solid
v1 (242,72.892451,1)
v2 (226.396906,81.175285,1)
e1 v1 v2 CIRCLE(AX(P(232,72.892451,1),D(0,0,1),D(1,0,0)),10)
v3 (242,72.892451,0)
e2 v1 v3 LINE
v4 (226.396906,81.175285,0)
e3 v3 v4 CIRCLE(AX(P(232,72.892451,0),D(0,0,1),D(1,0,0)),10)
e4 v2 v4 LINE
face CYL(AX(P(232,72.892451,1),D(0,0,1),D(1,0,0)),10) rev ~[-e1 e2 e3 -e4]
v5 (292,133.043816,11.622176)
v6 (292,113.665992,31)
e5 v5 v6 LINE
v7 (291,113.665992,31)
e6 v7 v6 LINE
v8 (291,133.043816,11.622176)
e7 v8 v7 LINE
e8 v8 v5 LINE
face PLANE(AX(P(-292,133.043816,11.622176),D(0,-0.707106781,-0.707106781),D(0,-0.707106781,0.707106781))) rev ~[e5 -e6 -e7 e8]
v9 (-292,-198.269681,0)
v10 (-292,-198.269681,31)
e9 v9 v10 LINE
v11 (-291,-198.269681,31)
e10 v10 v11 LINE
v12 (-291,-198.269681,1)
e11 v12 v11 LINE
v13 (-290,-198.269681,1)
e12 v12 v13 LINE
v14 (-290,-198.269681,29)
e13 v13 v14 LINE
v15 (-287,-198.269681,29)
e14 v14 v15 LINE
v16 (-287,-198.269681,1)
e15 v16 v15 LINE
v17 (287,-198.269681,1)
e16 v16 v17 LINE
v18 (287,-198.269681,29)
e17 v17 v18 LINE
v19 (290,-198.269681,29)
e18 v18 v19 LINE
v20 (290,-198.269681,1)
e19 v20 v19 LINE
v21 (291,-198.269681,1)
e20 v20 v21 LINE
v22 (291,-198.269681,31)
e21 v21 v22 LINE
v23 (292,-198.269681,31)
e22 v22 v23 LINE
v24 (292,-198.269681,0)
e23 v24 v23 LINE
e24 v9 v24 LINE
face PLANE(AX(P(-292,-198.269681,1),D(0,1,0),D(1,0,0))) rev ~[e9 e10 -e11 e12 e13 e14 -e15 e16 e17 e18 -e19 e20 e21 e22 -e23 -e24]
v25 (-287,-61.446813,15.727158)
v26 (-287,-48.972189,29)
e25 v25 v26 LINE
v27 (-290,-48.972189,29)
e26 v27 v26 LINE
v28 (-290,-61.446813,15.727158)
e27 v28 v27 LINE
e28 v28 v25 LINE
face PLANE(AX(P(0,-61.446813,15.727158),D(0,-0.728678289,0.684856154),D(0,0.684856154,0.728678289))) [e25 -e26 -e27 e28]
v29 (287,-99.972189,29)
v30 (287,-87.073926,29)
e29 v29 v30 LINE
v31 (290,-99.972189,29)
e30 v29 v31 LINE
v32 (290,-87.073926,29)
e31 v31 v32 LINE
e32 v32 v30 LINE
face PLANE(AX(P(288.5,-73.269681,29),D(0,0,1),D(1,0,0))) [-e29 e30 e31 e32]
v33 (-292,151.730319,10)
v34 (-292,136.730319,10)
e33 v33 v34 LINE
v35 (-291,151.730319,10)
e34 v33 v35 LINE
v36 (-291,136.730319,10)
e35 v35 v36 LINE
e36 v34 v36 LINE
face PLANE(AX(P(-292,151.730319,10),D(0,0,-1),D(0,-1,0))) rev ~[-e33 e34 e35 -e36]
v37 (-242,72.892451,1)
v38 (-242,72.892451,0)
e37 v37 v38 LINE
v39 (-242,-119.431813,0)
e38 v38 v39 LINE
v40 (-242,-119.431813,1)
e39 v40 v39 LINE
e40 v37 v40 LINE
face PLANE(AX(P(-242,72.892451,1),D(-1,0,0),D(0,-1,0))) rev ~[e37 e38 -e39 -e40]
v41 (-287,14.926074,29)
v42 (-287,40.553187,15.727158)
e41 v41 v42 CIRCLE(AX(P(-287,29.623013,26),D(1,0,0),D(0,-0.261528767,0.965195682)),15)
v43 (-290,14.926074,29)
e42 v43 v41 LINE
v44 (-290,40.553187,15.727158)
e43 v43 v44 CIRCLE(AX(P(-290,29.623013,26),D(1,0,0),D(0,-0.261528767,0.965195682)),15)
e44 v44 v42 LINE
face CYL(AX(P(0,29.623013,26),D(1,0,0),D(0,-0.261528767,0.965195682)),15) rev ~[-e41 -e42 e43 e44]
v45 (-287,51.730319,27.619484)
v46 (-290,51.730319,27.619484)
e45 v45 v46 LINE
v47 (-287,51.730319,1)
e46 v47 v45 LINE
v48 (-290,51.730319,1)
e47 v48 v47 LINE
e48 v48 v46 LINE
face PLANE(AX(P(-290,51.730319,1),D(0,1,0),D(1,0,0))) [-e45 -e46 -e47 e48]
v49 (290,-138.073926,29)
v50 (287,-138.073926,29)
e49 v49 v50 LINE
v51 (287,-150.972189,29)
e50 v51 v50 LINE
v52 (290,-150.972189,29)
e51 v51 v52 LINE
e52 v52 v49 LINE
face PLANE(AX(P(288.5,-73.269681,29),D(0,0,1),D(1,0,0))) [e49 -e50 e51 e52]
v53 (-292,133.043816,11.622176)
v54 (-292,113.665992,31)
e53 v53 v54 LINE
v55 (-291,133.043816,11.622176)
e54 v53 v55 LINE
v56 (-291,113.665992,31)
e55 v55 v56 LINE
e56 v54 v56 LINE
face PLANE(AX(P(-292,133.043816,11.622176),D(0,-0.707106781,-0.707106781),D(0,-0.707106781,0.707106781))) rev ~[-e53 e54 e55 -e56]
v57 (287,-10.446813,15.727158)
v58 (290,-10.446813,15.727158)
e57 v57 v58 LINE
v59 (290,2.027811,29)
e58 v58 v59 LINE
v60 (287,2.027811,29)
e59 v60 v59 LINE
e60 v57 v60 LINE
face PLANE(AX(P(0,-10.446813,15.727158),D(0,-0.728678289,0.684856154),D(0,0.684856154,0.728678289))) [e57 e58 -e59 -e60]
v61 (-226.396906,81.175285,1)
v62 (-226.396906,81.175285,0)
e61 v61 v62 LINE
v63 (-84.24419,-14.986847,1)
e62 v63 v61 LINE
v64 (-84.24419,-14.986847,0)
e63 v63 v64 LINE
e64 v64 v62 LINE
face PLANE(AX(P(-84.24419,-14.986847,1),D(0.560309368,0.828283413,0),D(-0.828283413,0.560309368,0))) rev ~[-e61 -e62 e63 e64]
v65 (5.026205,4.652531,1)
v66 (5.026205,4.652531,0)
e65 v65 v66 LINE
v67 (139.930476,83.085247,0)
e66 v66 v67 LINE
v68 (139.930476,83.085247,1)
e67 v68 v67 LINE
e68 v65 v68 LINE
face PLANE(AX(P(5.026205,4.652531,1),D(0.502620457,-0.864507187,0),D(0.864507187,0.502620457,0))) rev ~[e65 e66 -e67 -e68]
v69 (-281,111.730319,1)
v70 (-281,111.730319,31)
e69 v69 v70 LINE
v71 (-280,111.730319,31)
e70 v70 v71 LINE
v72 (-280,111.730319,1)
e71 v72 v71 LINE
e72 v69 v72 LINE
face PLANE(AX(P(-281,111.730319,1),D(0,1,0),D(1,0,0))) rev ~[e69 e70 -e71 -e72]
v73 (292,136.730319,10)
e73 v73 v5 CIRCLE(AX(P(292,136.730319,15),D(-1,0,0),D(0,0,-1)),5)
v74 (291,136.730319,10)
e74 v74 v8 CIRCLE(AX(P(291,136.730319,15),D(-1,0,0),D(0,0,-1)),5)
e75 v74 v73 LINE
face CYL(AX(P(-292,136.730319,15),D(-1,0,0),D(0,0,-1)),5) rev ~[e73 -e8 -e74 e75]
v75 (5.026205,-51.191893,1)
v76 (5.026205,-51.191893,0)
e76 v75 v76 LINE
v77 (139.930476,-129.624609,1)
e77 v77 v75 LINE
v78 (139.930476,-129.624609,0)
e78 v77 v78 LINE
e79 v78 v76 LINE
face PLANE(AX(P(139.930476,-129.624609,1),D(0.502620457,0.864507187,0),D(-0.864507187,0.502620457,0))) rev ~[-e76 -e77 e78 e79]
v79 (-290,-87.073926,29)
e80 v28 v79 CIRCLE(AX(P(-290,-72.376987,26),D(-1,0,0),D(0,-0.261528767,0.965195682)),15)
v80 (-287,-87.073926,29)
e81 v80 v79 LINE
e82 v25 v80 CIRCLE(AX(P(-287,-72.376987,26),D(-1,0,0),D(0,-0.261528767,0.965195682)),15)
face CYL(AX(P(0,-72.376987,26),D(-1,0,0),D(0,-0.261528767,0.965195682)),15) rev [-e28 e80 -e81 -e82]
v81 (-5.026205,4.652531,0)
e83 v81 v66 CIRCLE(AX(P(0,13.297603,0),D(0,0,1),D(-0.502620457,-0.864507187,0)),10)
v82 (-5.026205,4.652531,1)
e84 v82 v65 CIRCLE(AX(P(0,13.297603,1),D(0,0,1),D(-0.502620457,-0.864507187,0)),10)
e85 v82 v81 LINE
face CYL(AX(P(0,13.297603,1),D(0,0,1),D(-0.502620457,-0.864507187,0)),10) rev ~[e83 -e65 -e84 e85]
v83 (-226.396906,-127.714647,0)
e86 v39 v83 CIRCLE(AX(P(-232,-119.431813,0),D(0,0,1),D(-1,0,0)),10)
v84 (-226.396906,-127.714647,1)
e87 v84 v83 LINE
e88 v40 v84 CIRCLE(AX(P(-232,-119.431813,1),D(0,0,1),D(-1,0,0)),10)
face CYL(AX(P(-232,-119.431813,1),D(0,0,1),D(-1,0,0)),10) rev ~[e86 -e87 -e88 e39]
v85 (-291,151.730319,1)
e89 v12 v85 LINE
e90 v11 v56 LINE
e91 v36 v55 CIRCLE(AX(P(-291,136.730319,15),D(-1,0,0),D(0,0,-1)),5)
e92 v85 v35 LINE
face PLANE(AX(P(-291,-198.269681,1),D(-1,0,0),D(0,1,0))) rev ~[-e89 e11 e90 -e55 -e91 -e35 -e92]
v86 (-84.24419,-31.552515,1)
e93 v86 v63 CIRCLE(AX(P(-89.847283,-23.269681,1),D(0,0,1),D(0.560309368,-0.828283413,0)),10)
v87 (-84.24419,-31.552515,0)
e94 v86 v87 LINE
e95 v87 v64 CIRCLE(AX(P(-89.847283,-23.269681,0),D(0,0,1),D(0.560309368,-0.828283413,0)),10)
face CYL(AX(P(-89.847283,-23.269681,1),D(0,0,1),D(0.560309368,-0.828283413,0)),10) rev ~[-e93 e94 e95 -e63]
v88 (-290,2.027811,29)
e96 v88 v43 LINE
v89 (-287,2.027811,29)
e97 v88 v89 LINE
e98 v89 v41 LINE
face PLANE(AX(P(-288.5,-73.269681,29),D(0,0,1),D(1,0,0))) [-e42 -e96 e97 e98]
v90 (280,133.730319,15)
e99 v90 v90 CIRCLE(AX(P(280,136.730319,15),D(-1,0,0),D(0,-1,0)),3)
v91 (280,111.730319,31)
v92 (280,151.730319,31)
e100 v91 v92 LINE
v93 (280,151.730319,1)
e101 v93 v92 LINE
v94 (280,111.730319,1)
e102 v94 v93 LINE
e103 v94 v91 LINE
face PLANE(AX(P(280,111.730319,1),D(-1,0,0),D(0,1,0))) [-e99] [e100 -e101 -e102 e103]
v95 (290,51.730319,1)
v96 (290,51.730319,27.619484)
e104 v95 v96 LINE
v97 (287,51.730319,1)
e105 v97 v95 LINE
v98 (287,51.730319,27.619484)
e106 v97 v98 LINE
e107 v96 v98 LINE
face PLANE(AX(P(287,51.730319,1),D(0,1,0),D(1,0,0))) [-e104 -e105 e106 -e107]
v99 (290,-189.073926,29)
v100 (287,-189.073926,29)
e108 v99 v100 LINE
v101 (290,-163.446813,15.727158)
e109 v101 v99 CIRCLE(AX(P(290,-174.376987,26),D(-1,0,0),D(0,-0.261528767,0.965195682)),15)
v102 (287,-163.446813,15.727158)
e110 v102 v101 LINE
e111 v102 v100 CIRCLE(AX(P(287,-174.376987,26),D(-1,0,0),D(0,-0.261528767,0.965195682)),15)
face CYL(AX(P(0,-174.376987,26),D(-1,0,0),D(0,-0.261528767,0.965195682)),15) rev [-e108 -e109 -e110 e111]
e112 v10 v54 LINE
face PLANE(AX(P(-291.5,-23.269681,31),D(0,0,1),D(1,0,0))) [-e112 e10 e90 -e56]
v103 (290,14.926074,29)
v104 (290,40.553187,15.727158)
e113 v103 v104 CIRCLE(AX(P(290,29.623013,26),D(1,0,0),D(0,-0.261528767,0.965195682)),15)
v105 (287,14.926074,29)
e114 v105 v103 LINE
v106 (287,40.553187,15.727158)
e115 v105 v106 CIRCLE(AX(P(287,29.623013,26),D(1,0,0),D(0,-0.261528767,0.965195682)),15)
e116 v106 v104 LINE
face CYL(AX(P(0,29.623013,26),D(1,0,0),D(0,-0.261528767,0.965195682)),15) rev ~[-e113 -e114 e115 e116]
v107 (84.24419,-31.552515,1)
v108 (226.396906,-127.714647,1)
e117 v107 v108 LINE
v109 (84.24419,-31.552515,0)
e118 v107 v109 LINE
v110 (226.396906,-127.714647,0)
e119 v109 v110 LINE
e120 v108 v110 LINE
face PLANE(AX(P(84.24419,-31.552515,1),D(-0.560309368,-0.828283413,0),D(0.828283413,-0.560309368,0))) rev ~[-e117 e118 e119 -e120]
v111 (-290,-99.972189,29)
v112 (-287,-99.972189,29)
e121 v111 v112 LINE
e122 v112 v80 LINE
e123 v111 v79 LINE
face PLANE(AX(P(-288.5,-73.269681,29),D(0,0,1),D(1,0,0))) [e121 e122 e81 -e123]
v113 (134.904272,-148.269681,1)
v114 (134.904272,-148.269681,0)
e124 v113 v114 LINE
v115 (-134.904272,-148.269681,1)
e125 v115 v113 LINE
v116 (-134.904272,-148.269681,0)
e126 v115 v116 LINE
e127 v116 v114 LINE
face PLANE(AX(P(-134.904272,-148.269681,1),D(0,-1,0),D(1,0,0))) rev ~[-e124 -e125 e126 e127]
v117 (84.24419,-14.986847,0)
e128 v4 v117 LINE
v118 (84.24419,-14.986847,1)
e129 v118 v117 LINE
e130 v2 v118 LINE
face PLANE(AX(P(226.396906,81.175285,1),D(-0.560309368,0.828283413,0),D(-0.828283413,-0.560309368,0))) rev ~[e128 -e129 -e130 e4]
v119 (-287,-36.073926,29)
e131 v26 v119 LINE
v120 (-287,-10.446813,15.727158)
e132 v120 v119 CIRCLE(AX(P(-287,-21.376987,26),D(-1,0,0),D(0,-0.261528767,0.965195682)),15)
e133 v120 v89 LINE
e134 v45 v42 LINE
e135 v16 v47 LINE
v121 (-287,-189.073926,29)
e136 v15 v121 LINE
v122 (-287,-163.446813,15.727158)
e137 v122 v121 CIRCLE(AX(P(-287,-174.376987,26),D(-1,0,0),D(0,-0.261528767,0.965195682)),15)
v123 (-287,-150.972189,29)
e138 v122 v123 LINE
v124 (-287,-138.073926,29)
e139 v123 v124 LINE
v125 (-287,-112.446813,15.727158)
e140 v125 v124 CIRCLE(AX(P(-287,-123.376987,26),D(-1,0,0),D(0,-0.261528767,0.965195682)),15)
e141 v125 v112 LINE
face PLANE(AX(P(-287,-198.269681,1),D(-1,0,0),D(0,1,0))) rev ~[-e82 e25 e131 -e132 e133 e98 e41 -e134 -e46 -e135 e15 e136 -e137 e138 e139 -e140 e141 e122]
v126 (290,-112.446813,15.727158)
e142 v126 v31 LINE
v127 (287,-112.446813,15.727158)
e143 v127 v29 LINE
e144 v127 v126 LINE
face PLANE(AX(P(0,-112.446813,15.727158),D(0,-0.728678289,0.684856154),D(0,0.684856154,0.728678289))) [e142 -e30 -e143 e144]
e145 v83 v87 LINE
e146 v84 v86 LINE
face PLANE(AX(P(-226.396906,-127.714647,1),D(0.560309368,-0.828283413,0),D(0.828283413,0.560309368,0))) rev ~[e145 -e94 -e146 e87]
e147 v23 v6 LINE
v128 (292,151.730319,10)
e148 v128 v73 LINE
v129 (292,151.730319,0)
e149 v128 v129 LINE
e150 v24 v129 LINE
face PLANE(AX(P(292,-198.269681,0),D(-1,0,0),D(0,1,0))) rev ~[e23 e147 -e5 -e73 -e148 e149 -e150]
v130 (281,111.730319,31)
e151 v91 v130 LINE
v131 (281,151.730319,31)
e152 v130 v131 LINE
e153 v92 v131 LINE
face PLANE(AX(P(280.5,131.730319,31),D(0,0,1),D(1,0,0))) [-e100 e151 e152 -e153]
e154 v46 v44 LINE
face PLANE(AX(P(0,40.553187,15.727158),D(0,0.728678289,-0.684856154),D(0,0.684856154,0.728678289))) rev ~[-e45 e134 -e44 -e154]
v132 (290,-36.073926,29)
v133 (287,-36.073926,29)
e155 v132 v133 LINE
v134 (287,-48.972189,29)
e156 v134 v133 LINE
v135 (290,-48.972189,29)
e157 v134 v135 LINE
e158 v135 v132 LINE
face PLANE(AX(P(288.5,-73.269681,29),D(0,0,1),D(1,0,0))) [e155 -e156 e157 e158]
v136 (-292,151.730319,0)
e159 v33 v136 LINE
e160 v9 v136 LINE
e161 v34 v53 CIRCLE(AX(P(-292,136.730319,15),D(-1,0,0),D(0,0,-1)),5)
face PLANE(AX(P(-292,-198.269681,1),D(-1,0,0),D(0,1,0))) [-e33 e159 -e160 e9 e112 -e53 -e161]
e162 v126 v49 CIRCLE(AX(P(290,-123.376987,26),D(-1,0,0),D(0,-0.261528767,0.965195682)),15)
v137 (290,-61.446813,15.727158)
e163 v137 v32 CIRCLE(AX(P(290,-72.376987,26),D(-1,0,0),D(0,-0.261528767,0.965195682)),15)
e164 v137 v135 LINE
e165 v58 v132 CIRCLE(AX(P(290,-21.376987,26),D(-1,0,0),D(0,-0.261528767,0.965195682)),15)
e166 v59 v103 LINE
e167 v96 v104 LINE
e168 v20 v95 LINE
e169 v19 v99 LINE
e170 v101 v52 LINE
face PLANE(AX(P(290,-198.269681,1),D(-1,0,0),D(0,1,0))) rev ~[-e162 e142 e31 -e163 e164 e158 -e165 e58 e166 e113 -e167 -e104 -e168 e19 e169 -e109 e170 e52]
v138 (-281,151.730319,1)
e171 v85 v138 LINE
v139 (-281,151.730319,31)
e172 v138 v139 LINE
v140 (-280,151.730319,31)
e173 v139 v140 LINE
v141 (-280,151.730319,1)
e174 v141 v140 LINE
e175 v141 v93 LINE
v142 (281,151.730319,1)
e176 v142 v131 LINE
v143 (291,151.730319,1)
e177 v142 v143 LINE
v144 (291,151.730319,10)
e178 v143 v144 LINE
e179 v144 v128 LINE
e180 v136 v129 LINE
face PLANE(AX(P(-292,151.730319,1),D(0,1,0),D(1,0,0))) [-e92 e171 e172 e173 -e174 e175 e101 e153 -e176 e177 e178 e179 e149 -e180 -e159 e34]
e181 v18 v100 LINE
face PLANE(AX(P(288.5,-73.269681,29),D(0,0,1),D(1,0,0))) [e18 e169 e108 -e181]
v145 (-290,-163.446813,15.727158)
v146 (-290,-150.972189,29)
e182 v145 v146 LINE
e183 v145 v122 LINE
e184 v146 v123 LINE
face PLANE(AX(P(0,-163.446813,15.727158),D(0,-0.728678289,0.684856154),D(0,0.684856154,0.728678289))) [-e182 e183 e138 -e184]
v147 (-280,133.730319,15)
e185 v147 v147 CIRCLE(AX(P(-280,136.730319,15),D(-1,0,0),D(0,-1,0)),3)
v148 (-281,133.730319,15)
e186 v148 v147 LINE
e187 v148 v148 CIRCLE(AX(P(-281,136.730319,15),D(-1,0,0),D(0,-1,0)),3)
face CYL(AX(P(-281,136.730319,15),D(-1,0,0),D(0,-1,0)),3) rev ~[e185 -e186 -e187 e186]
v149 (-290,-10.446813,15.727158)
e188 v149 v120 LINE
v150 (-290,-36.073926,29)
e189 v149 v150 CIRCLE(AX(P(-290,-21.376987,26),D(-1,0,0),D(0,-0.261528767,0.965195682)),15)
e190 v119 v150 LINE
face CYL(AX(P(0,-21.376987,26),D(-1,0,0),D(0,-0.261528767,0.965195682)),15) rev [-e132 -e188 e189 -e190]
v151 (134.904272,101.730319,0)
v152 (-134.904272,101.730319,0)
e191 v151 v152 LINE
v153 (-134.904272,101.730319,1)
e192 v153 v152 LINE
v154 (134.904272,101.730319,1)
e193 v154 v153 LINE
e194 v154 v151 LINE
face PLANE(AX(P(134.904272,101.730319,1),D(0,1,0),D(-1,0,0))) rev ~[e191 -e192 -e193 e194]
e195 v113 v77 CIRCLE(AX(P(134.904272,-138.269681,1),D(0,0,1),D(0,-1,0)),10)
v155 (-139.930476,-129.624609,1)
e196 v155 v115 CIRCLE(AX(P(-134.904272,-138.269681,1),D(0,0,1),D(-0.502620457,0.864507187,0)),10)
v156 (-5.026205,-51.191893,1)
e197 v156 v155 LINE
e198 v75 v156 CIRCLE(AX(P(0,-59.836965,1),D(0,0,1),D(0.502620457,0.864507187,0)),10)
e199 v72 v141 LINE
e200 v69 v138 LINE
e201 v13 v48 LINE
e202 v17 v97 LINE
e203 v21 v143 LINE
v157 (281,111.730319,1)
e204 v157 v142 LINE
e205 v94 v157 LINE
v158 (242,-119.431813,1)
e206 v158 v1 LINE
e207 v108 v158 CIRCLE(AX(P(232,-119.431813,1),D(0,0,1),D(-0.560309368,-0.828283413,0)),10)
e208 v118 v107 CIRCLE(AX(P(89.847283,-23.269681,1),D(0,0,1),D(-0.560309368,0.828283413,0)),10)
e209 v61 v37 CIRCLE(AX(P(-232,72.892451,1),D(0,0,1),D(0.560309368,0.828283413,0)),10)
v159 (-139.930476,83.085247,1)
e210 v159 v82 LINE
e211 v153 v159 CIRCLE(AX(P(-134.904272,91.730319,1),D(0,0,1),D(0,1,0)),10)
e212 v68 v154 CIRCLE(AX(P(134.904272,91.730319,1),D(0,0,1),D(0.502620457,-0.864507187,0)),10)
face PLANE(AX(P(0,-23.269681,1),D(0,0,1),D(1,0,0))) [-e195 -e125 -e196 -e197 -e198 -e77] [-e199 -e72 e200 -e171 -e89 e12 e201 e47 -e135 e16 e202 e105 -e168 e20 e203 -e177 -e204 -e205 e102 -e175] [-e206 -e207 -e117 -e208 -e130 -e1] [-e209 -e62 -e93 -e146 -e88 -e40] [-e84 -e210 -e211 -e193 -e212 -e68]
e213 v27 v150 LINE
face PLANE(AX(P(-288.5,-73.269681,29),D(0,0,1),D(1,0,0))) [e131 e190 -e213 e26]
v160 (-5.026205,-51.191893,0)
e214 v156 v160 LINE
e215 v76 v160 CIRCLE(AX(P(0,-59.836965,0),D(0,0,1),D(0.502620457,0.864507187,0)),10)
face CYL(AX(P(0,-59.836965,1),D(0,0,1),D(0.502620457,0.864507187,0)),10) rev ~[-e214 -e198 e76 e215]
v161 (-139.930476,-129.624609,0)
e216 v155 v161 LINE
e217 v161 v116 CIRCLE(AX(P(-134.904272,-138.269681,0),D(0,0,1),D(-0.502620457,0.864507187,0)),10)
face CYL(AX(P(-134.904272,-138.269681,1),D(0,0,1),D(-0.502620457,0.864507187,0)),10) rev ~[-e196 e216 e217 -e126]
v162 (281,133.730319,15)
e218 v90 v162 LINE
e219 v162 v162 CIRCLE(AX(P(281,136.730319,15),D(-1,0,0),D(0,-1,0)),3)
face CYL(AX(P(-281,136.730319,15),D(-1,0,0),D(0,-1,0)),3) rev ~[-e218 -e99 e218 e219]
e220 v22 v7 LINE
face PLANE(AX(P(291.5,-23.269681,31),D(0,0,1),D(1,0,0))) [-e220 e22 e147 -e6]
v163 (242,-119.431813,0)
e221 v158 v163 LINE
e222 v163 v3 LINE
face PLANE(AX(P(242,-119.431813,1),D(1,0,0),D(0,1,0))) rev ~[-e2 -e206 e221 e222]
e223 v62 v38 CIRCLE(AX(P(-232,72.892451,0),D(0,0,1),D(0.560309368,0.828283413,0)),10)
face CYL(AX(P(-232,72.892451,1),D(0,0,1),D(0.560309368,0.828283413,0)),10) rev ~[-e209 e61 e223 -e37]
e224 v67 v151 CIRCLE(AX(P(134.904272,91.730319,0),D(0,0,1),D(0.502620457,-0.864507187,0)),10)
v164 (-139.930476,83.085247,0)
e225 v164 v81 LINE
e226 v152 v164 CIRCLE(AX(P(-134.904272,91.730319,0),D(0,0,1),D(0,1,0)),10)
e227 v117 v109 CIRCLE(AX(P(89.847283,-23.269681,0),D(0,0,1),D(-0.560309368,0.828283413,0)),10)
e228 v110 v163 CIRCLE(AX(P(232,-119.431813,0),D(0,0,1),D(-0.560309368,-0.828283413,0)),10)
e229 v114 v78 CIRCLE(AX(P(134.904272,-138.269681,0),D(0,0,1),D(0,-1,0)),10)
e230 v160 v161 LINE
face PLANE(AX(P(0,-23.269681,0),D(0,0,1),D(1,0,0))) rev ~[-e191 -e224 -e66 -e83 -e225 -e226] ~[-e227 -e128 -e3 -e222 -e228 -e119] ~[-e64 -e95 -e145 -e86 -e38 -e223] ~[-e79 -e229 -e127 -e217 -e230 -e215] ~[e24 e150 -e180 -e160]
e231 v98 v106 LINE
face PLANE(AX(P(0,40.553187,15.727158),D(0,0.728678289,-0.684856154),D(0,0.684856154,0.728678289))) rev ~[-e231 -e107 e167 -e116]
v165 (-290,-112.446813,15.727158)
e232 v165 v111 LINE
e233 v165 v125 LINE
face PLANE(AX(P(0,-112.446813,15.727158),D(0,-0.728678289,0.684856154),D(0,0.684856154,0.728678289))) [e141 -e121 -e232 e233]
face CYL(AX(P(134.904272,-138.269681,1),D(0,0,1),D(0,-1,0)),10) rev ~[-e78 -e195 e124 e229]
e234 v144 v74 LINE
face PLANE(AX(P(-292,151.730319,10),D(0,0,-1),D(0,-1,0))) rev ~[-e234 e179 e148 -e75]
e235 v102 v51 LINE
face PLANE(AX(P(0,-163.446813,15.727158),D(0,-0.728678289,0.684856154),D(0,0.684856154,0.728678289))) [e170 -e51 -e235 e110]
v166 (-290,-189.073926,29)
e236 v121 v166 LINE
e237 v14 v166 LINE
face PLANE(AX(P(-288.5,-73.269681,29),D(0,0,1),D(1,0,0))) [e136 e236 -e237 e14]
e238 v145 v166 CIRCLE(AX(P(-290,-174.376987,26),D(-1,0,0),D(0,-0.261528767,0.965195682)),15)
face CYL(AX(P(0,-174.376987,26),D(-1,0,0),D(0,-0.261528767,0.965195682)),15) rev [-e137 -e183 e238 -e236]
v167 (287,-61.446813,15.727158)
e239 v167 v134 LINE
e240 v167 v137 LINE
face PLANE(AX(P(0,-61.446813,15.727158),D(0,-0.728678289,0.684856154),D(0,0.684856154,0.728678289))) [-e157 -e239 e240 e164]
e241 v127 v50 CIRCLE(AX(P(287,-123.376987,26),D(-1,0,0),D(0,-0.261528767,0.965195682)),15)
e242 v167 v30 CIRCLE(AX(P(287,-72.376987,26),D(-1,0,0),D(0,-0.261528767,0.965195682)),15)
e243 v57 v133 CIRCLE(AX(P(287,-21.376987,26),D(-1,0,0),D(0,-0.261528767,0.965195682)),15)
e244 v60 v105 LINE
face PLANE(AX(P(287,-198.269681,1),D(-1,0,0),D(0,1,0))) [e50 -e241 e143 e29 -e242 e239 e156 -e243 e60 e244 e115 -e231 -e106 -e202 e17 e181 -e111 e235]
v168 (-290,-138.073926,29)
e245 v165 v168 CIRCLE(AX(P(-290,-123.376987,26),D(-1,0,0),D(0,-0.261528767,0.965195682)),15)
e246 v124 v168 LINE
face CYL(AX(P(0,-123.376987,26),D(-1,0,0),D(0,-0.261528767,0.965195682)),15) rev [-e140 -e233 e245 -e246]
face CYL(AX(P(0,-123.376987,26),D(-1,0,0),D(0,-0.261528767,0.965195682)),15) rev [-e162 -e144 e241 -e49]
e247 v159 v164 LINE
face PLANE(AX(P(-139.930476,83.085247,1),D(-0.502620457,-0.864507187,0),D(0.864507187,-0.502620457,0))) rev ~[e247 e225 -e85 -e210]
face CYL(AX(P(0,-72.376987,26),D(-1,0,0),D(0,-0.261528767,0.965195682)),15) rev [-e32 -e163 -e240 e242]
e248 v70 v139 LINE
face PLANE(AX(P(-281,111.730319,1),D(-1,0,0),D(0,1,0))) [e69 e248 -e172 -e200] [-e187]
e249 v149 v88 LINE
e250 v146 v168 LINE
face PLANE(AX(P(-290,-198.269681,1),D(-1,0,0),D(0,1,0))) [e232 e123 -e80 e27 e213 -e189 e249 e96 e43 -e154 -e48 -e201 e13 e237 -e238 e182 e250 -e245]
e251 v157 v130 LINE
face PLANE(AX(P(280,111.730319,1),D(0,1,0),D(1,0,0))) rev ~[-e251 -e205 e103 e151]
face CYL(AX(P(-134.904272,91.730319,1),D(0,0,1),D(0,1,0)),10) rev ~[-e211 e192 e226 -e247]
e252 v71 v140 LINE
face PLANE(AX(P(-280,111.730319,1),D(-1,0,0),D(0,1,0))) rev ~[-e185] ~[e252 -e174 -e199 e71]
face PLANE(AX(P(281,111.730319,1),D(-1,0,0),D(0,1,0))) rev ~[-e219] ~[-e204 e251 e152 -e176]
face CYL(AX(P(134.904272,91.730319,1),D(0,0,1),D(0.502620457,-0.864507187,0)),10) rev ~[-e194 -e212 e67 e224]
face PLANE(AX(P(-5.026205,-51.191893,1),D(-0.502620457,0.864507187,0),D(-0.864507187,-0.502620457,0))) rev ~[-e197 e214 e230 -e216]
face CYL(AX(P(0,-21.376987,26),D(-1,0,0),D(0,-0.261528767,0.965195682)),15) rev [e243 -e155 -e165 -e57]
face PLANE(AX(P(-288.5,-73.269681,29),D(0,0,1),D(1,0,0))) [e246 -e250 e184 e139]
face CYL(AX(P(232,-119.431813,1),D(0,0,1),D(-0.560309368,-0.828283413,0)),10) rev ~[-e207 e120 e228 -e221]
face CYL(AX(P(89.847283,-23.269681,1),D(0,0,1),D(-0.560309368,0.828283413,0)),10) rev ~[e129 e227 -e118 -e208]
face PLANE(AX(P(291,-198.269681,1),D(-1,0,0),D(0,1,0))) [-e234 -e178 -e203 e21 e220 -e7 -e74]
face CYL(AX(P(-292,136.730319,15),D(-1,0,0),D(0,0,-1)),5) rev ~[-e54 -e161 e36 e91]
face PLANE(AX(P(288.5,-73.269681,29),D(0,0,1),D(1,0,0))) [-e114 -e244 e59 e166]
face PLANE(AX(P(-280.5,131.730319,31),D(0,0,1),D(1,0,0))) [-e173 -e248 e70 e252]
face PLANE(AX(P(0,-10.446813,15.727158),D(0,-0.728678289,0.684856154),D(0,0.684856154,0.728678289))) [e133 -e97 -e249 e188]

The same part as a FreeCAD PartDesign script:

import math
import FreeCAD as App
import Part
import Sketcher

V = App.Vector
Q = App.Units.Quantity

doc = App.newDocument("Part")
body = doc.addObject("PartDesign::Body", "Body")

sketch1 = body.newObject("Sketcher::SketchObject", "Sketch")
sketch1.AttachmentSupport = (doc.getObject("XY_Plane"), [""])
sketch1.MapMode = "FlatFace"
sketch1.addGeometry([
    Part.LineSegment(V(-292, 152, 0), V(-292, -198, 0)),
    Part.LineSegment(V(-292, -198, 0), V(292, -198, 0)),
    Part.LineSegment(V(292, -198, 0), V(292, 152, 0)),
    Part.LineSegment(V(292, 152, 0), V(-292, 152, 0)),
], False)
sketch1.addConstraint([
    Sketcher.Constraint("Coincident", 0, 2, 1, 1),
    Sketcher.Constraint("Coincident", 1, 2, 2, 1),
    Sketcher.Constraint("Coincident", 2, 2, 3, 1),
    Sketcher.Constraint("Coincident", 3, 2, 0, 1),
    Sketcher.Constraint("Vertical", 0),
    Sketcher.Constraint("Horizontal", 1),
    Sketcher.Constraint("Vertical", 2),
    Sketcher.Constraint("Horizontal", 3),
    Sketcher.Constraint("DistanceX", 1, 1, 1, 2, 584.0),
    Sketcher.Constraint("DistanceY", 0, 2, 0, 1, 350.0),
    Sketcher.Constraint("DistanceX", 0, 2, -1, 1, 292.0),
    Sketcher.Constraint("DistanceY", 0, 2, -1, 1, 198.269681),
])
pad1 = body.newObject("PartDesign::Pad", "Pad")
pad1.Profile = sketch1
pad1.Length = 1

sketch2 = body.newObject("Sketcher::SketchObject", "Sketch001")
sketch2.AttachmentSupport = (doc.getObject("XY_Plane"), [""])
sketch2.MapMode = "FlatFace"
sketch2.AttachmentOffset = App.Placement(V(0, 0, 1), App.Rotation())
sketch2.addGeometry([
    Part.LineSegment(V(-292, 151.7, 0), V(-292, -198.3, 0)),
    Part.LineSegment(V(-292, -198.3, 0), V(-291, -198.3, 0)),
    Part.LineSegment(V(-291, -198.3, 0), V(-291, 151.7, 0)),
    Part.LineSegment(V(-291, 151.7, 0), V(-292, 151.7, 0)),
    Part.LineSegment(V(291, 151.7, 0), V(291, -198.3, 0)),
    Part.LineSegment(V(291, -198.3, 0), V(292, -198.3, 0)),
    Part.LineSegment(V(292, -198.3, 0), V(292, 151.7, 0)),
    Part.LineSegment(V(292, 151.7, 0), V(291, 151.7, 0)),
], False)
sketch2.addConstraint([
    Sketcher.Constraint("Coincident", 0, 2, 1, 1),
    Sketcher.Constraint("Coincident", 1, 2, 2, 1),
    Sketcher.Constraint("Coincident", 2, 2, 3, 1),
    Sketcher.Constraint("Coincident", 3, 2, 0, 1),
    Sketcher.Constraint("Coincident", 4, 2, 5, 1),
    Sketcher.Constraint("Coincident", 5, 2, 6, 1),
    Sketcher.Constraint("Coincident", 6, 2, 7, 1),
    Sketcher.Constraint("Coincident", 7, 2, 4, 1),
    Sketcher.Constraint("Vertical", 0),
    Sketcher.Constraint("Horizontal", 1),
    Sketcher.Constraint("Vertical", 2),
    Sketcher.Constraint("Horizontal", 3),
    Sketcher.Constraint("Vertical", 4),
    Sketcher.Constraint("Horizontal", 5),
    Sketcher.Constraint("Vertical", 6),
    Sketcher.Constraint("Horizontal", 7),
    Sketcher.Constraint("Symmetric", 1, 2, 4, 2, -2),
    Sketcher.Constraint("Symmetric", 3, 2, 6, 2, -2),
    Sketcher.Constraint("DistanceX", 1, 1, 1, 2, 1.0),
    Sketcher.Constraint("DistanceY", 0, 2, 0, 1, 350.0),
    Sketcher.Constraint("DistanceX", 0, 2, -1, 1, 292.0),
    Sketcher.Constraint("DistanceY", 0, 2, -1, 1, 198.269681),
])
pad2 = body.newObject("PartDesign::Pad", "Pad001")
pad2.Profile = sketch2
pad2.Length = 30

sketch3 = body.newObject("Sketcher::SketchObject", "Sketch002")
sketch3.AttachmentSupport = (doc.getObject("YZ_Plane"), [""])
sketch3.MapMode = "FlatFace"
sketch3.AttachmentOffset = App.Placement(V(0, 0, -292), App.Rotation())
sketch3.addGeometry([
    Part.ArcOfCircle(Part.Circle(V(136.7, 15, 0), V(0, 0, 1), 5), math.radians(-138), math.radians(-90)),
    Part.LineSegment(V(133, 11.6, 0), V(113.7, 31, 0)),
    Part.LineSegment(V(113.7, 31, 0), V(151.7, 31, 0)),
    Part.LineSegment(V(151.7, 31, 0), V(151.7, 10, 0)),
    Part.LineSegment(V(151.7, 10, 0), V(136.7, 10, 0)),
], False)
sketch3.addConstraint([
    Sketcher.Constraint("Coincident", 0, 1, 1, 1),
    Sketcher.Constraint("Coincident", 1, 2, 2, 1),
    Sketcher.Constraint("Coincident", 2, 2, 3, 1),
    Sketcher.Constraint("Coincident", 3, 2, 4, 1),
    Sketcher.Constraint("Tangent", 4, 2, 0, 2),
    Sketcher.Constraint("Horizontal", 2),
    Sketcher.Constraint("Vertical", 3),
    Sketcher.Constraint("Horizontal", 4),
    Sketcher.Constraint("Radius", 0, 5.0),
    Sketcher.Constraint("DistanceX", 4, 2, 4, 1, 15.0),
    Sketcher.Constraint("DistanceY", 3, 2, 3, 1, 21.0),
    Sketcher.Constraint("Angle", 1, Q("135 deg")),
    Sketcher.Constraint("DistanceY", -1, 1, 0, 3, 15.0),
    Sketcher.Constraint("Distance", 1, 27.404381),
    Sketcher.Constraint("DistanceX", -1, 1, 0, 3, 136.730319),
])
pocket1 = body.newObject("PartDesign::Pocket", "Pocket")
pocket1.Profile = sketch3
pocket1.Length = 645
pocket1.Reversed = True

sketch4 = body.newObject("Sketcher::SketchObject", "Sketch003")
sketch4.AttachmentSupport = (doc.getObject("XY_Plane"), [""])
sketch4.MapMode = "FlatFace"
sketch4.AttachmentOffset = App.Placement(V(0, 0, 1), App.Rotation())
sketch4.addGeometry([
    Part.LineSegment(V(-281, 151.7, 0), V(-281, 111.7, 0)),
    Part.LineSegment(V(-281, 111.7, 0), V(-280, 111.7, 0)),
    Part.LineSegment(V(-280, 111.7, 0), V(-280, 151.7, 0)),
    Part.LineSegment(V(-280, 151.7, 0), V(-281, 151.7, 0)),
    Part.LineSegment(V(280, 151.7, 0), V(280, 111.7, 0)),
    Part.LineSegment(V(280, 111.7, 0), V(281, 111.7, 0)),
    Part.LineSegment(V(281, 111.7, 0), V(281, 151.7, 0)),
    Part.LineSegment(V(281, 151.7, 0), V(280, 151.7, 0)),
], False)
sketch4.addConstraint([
    Sketcher.Constraint("Coincident", 0, 2, 1, 1),
    Sketcher.Constraint("Coincident", 1, 2, 2, 1),
    Sketcher.Constraint("Coincident", 2, 2, 3, 1),
    Sketcher.Constraint("Coincident", 3, 2, 0, 1),
    Sketcher.Constraint("Coincident", 4, 2, 5, 1),
    Sketcher.Constraint("Coincident", 5, 2, 6, 1),
    Sketcher.Constraint("Coincident", 6, 2, 7, 1),
    Sketcher.Constraint("Coincident", 7, 2, 4, 1),
    Sketcher.Constraint("Vertical", 0),
    Sketcher.Constraint("Horizontal", 1),
    Sketcher.Constraint("Vertical", 2),
    Sketcher.Constraint("Horizontal", 3),
    Sketcher.Constraint("Vertical", 4),
    Sketcher.Constraint("Horizontal", 5),
    Sketcher.Constraint("Vertical", 6),
    Sketcher.Constraint("Horizontal", 7),
    Sketcher.Constraint("Symmetric", 1, 2, 4, 2, -2),
    Sketcher.Constraint("Symmetric", 3, 2, 6, 2, -2),
    Sketcher.Constraint("DistanceX", 1, 1, 1, 2, 1.0),
    Sketcher.Constraint("DistanceY", 0, 2, 0, 1, 40.0),
    Sketcher.Constraint("DistanceX", 0, 2, -1, 1, 281.0),
    Sketcher.Constraint("DistanceY", -1, 1, 0, 2, 111.730319),
])
pad3 = body.newObject("PartDesign::Pad", "Pad002")
pad3.Profile = sketch4
pad3.Length = 30

sketch5 = body.newObject("Sketcher::SketchObject", "Sketch004")
sketch5.AttachmentSupport = (doc.getObject("YZ_Plane"), [""])
sketch5.MapMode = "FlatFace"
sketch5.AttachmentOffset = App.Placement(V(0, 0, -281), App.Rotation())
sketch5.addGeometry(Part.Circle(V(136.7, 15, 0), V(0, 0, 1), 3), False)
sketch5.addConstraint([
    Sketcher.Constraint("Diameter", 0, 6.0),
    Sketcher.Constraint("DistanceY", -1, 1, 0, 3, 15.0),
    Sketcher.Constraint("DistanceX", -1, 1, 0, 3, 136.730319),
])
pocket2 = body.newObject("PartDesign::Pocket", "Pocket001")
pocket2.Profile = sketch5
pocket2.Length = 565
pocket2.Reversed = True

sketch6 = body.newObject("Sketcher::SketchObject", "Sketch005")
sketch6.AttachmentSupport = (doc.getObject("XY_Plane"), [""])
sketch6.MapMode = "FlatFace"
sketch6.AttachmentOffset = App.Placement(V(0, 0, 1), App.Rotation())
sketch6.addGeometry([
    Part.LineSegment(V(-290, 51.7, 0), V(-290, -198.3, 0)),
    Part.LineSegment(V(-290, -198.3, 0), V(-287, -198.3, 0)),
    Part.LineSegment(V(-287, -198.3, 0), V(-287, 51.7, 0)),
    Part.LineSegment(V(-287, 51.7, 0), V(-290, 51.7, 0)),
    Part.LineSegment(V(287, 51.7, 0), V(287, -198.3, 0)),
    Part.LineSegment(V(287, -198.3, 0), V(290, -198.3, 0)),
    Part.LineSegment(V(290, -198.3, 0), V(290, 51.7, 0)),
    Part.LineSegment(V(290, 51.7, 0), V(287, 51.7, 0)),
], False)
sketch6.addConstraint([
    Sketcher.Constraint("Coincident", 0, 2, 1, 1),
    Sketcher.Constraint("Coincident", 1, 2, 2, 1),
    Sketcher.Constraint("Coincident", 2, 2, 3, 1),
    Sketcher.Constraint("Coincident", 3, 2, 0, 1),
    Sketcher.Constraint("Coincident", 4, 2, 5, 1),
    Sketcher.Constraint("Coincident", 5, 2, 6, 1),
    Sketcher.Constraint("Coincident", 6, 2, 7, 1),
    Sketcher.Constraint("Coincident", 7, 2, 4, 1),
    Sketcher.Constraint("Vertical", 0),
    Sketcher.Constraint("Horizontal", 1),
    Sketcher.Constraint("Vertical", 2),
    Sketcher.Constraint("Horizontal", 3),
    Sketcher.Constraint("Vertical", 4),
    Sketcher.Constraint("Horizontal", 5),
    Sketcher.Constraint("Vertical", 6),
    Sketcher.Constraint("Horizontal", 7),
    Sketcher.Constraint("Symmetric", 1, 2, 4, 2, -2),
    Sketcher.Constraint("Symmetric", 3, 2, 6, 2, -2),
    Sketcher.Constraint("DistanceX", 1, 1, 1, 2, 3.0),
    Sketcher.Constraint("DistanceY", 0, 2, 0, 1, 250.0),
    Sketcher.Constraint("DistanceX", 0, 2, -1, 1, 290.0),
    Sketcher.Constraint("DistanceY", 0, 2, -1, 1, 198.269681),
])
pad4 = body.newObject("PartDesign::Pad", "Pad003")
pad4.Profile = sketch6
pad4.Length = 28

sketch7 = body.newObject("Sketcher::SketchObject", "Sketch006")
sketch7.AttachmentSupport = (doc.getObject("YZ_Plane"), [""])
sketch7.MapMode = "FlatFace"
sketch7.addGeometry([
    Part.ArcOfCircle(Part.Circle(V(-174, 26, 0), V(0, 0, 1), 15), math.radians(105), math.radians(317)),
    Part.LineSegment(V(-163, 16, 0), V(-126, 56, 0)),
    Part.LineSegment(V(-126, 56, 0), V(-178, 40, 0)),
    Part.ArcOfCircle(Part.Circle(V(-123, 26, 0), V(0, 0, 1), 15), math.radians(105), math.radians(317)),
    Part.LineSegment(V(-112, 16, 0), V(-75, 56, 0)),
    Part.LineSegment(V(-75, 56, 0), V(-127, 40, 0)),
    Part.ArcOfCircle(Part.Circle(V(-72, 26, 0), V(0, 0, 1), 15), math.radians(105), math.radians(317)),
    Part.LineSegment(V(-61, 16, 0), V(-24, 56, 0)),
    Part.LineSegment(V(-24, 56, 0), V(-76, 40, 0)),
    Part.ArcOfCircle(Part.Circle(V(-21, 26, 0), V(0, 0, 1), 15), math.radians(105), math.radians(317)),
    Part.LineSegment(V(-10, 16, 0), V(27, 56, 0)),
    Part.LineSegment(V(27, 56, 0), V(-25, 40, 0)),
    Part.ArcOfCircle(Part.Circle(V(30, 26, 0), V(0, 0, 1), 15), math.radians(105), math.radians(317)),
    Part.LineSegment(V(41, 16, 0), V(78, 56, 0)),
    Part.LineSegment(V(78, 56, 0), V(26, 40, 0)),
], False)
sketch7.addConstraint([
    Sketcher.Constraint("Tangent", 0, 2, 1, 1),
    Sketcher.Constraint("Coincident", 1, 2, 2, 1),
    Sketcher.Constraint("Coincident", 2, 2, 0, 1),
    Sketcher.Constraint("Tangent", 3, 2, 4, 1),
    Sketcher.Constraint("Coincident", 4, 2, 5, 1),
    Sketcher.Constraint("Coincident", 5, 2, 3, 1),
    Sketcher.Constraint("Tangent", 6, 2, 7, 1),
    Sketcher.Constraint("Coincident", 7, 2, 8, 1),
    Sketcher.Constraint("Coincident", 8, 2, 6, 1),
    Sketcher.Constraint("Tangent", 9, 2, 10, 1),
    Sketcher.Constraint("Coincident", 10, 2, 11, 1),
    Sketcher.Constraint("Coincident", 11, 2, 9, 1),
    Sketcher.Constraint("Tangent", 12, 2, 13, 1),
    Sketcher.Constraint("Coincident", 13, 2, 14, 1),
    Sketcher.Constraint("Coincident", 14, 2, 12, 1),
    Sketcher.Constraint("Equal", 0, 3),
    Sketcher.Constraint("Equal", 3, 6),
    Sketcher.Constraint("Equal", 6, 9),
    Sketcher.Constraint("Equal", 9, 12),
    Sketcher.Constraint("Parallel", 1, 4),
    Sketcher.Constraint("Parallel", 2, 5),
    Sketcher.Constraint("Parallel", 4, 7),
    Sketcher.Constraint("Parallel", 5, 8),
    Sketcher.Constraint("Parallel", 7, 10),
    Sketcher.Constraint("Parallel", 8, 11),
    Sketcher.Constraint("Parallel", 10, 13),
    Sketcher.Constraint("Parallel", 11, 14),
    Sketcher.Constraint("Horizontal", 0, 3, 3, 3),
    Sketcher.Constraint("Horizontal", 3, 3, 6, 3),
    Sketcher.Constraint("Horizontal", 6, 3, 9, 3),
    Sketcher.Constraint("Horizontal", 9, 3, 12, 3),
    Sketcher.Constraint("Horizontal", 1, 2, 4, 2),
    Sketcher.Constraint("Horizontal", 4, 2, 7, 2),
    Sketcher.Constraint("Horizontal", 7, 2, 10, 2),
    Sketcher.Constraint("Horizontal", 10, 2, 13, 2),
    Sketcher.Constraint("Radius", 0, 15.0),
    Sketcher.Constraint("DistanceY", -1, 1, 0, 3, 26.0),
    Sketcher.Constraint("DistanceX", 0, 3, 3, 3, 51.0),
    Sketcher.Constraint("DistanceX", 3, 3, 6, 3, 51.0),
    Sketcher.Constraint("DistanceX", 6, 3, 9, 3, 51.0),
    Sketcher.Constraint("DistanceX", 9, 3, 12, 3, 51.0),
    Sketcher.Constraint("DistanceX", 1, 2, -1, 1, 125.934151),
    Sketcher.Constraint("DistanceX", 2, 2, -1, 1, 178.299919),
    Sketcher.Constraint("DistanceX", 0, 2, 1, 2, 37.512662),
    Sketcher.Constraint("DistanceX", 2, 2, 0, 3, 3.922932),
])
pocket3 = body.newObject("PartDesign::Pocket", "Pocket002")
pocket3.Profile = sketch7
pocket3.Length = 582
pocket3.Midplane = True

sketch8 = body.newObject("Sketcher::SketchObject", "Sketch007")
sketch8.AttachmentSupport = (doc.getObject("XY_Plane"), [""])
sketch8.MapMode = "FlatFace"
sketch8.AttachmentOffset = App.Placement(V(0, 0, 1), App.Rotation())
sketch8.addGeometry([
    Part.ArcOfCircle(Part.Circle(V(-135, 92, 0), V(0, 0, 1), 10), math.radians(90), math.radians(240)),
    Part.LineSegment(V(-140, 83, 0), V(-5, 5, 0)),
    Part.ArcOfCircle(Part.Circle(V(0, 13, 0), V(0, 0, 1), 10), math.radians(-120), math.radians(-60)),
    Part.LineSegment(V(5, 5, 0), V(140, 83, 0)),
    Part.ArcOfCircle(Part.Circle(V(135, 92, 0), V(0, 0, 1), 10), math.radians(-60), math.radians(90)),
    Part.LineSegment(V(135, 102, 0), V(-135, 102, 0)),
    Part.LineSegment(V(-5, -51, 0), V(-140, -130, 0)),
    Part.ArcOfCircle(Part.Circle(V(-135, -138, 0), V(0, 0, 1), 10), math.radians(120), math.radians(270)),
    Part.LineSegment(V(-135, -148, 0), V(135, -148, 0)),
    Part.ArcOfCircle(Part.Circle(V(135, -138, 0), V(0, 0, 1), 10), math.radians(-90), math.radians(60)),
    Part.LineSegment(V(140, -130, 0), V(5, -51, 0)),
    Part.ArcOfCircle(Part.Circle(V(0, -60, 0), V(0, 0, 1), 10), math.radians(60), math.radians(120)),
    Part.LineSegment(V(-84, -15, 0), V(-226, 81, 0)),
    Part.ArcOfCircle(Part.Circle(V(-232, 73, 0), V(0, 0, 1), 10), math.radians(56), math.radians(180)),
    Part.LineSegment(V(-242, 73, 0), V(-242, -119, 0)),
    Part.ArcOfCircle(Part.Circle(V(-232, -119, 0), V(0, 0, 1), 10), math.radians(180), math.radians(304)),
    Part.LineSegment(V(-226, -128, 0), V(-84, -32, 0)),
    Part.ArcOfCircle(Part.Circle(V(-90, -23, 0), V(0, 0, 1), 10), math.radians(-56), math.radians(56)),
    Part.LineSegment(V(226, 81, 0), V(84, -15, 0)),
    Part.ArcOfCircle(Part.Circle(V(90, -23, 0), V(0, 0, 1), 10), math.radians(124), math.radians(236)),
    Part.LineSegment(V(84, -32, 0), V(226, -128, 0)),
    Part.ArcOfCircle(Part.Circle(V(232, -119, 0), V(0, 0, 1), 10), math.radians(-124), math.radians(0)),
    Part.LineSegment(V(242, -119, 0), V(242, 73, 0)),
    Part.ArcOfCircle(Part.Circle(V(232, 73, 0), V(0, 0, 1), 10), math.radians(0), math.radians(124)),
], False)
sketch8.addConstraint([
    Sketcher.Constraint("Tangent", 0, 2, 1, 1),
    Sketcher.Constraint("Tangent", 1, 2, 2, 1),
    Sketcher.Constraint("Tangent", 2, 2, 3, 1),
    Sketcher.Constraint("Tangent", 3, 2, 4, 1),
    Sketcher.Constraint("Tangent", 4, 2, 5, 1),
    Sketcher.Constraint("Tangent", 5, 2, 0, 1),
    Sketcher.Constraint("Tangent", 6, 2, 7, 1),
    Sketcher.Constraint("Tangent", 7, 2, 8, 1),
    Sketcher.Constraint("Tangent", 8, 2, 9, 1),
    Sketcher.Constraint("Tangent", 9, 2, 10, 1),
    Sketcher.Constraint("Tangent", 10, 2, 11, 1),
    Sketcher.Constraint("Tangent", 11, 2, 6, 1),
    Sketcher.Constraint("Tangent", 12, 2, 13, 1),
    Sketcher.Constraint("Tangent", 13, 2, 14, 1),
    Sketcher.Constraint("Tangent", 14, 2, 15, 1),
    Sketcher.Constraint("Tangent", 15, 2, 16, 1),
    Sketcher.Constraint("Tangent", 16, 2, 17, 1),
    Sketcher.Constraint("Tangent", 17, 2, 12, 1),
    Sketcher.Constraint("Tangent", 18, 2, 19, 1),
    Sketcher.Constraint("Tangent", 19, 2, 20, 1),
    Sketcher.Constraint("Tangent", 20, 2, 21, 1),
    Sketcher.Constraint("Tangent", 21, 2, 22, 1),
    Sketcher.Constraint("Tangent", 22, 2, 23, 1),
    Sketcher.Constraint("Tangent", 23, 2, 18, 1),
    Sketcher.Constraint("Horizontal", 5),
    Sketcher.Constraint("Horizontal", 8),
    Sketcher.Constraint("Vertical", 14),
    Sketcher.Constraint("Vertical", 22),
    Sketcher.Constraint("Equal", 0, 2),
    Sketcher.Constraint("Equal", 2, 4),
    Sketcher.Constraint("Equal", 4, 7),
    Sketcher.Constraint("Equal", 7, 9),
    Sketcher.Constraint("Equal", 9, 11),
    Sketcher.Constraint("Equal", 11, 13),
    Sketcher.Constraint("Equal", 13, 15),
    Sketcher.Constraint("Equal", 15, 17),
    Sketcher.Constraint("Equal", 17, 19),
    Sketcher.Constraint("Equal", 19, 21),
    Sketcher.Constraint("Equal", 21, 23),
    Sketcher.Constraint("Symmetric", 17, 3, 19, 3, -2),
    Sketcher.Constraint("Symmetric", 15, 3, 21, 3, -2),
    Sketcher.Constraint("Symmetric", 1, 2, 2, 2, -2),
    Sketcher.Constraint("Symmetric", 6, 2, 9, 2, -2),
    Sketcher.Constraint("Parallel", 3, 6),
    Sketcher.Constraint("Parallel", 16, 18),
    Sketcher.Constraint("Parallel", 12, 20),
    Sketcher.Constraint("Vertical", 0, 3, 7, 3),
    Sketcher.Constraint("Radius", 0, 10.0),
    Sketcher.Constraint("DistanceX", 13, 3, -1, 1, 232.0),
    Sketcher.Constraint("DistanceY", 7, 3, 0, 3, 230.0),
    Sketcher.Constraint("DistanceY", 17, 3, 0, 3, 115.0),
    Sketcher.Constraint("Distance", 1, 156.0476),
    Sketcher.Constraint("Distance", 12, 171.623281),
    Sketcher.Constraint("DistanceX", 5, 2, 5, 1, 269.808544),
    Sketcher.Constraint("DistanceY", 14, 2, 14, 1, 192.324264),
    Sketcher.Constraint("DistanceY", -1, 1, 0, 3, 91.730319),
])
pocket4 = body.newObject("PartDesign::Pocket", "Pocket003")
pocket4.Profile = sketch8
pocket4.Length = 25

doc.recompute()
